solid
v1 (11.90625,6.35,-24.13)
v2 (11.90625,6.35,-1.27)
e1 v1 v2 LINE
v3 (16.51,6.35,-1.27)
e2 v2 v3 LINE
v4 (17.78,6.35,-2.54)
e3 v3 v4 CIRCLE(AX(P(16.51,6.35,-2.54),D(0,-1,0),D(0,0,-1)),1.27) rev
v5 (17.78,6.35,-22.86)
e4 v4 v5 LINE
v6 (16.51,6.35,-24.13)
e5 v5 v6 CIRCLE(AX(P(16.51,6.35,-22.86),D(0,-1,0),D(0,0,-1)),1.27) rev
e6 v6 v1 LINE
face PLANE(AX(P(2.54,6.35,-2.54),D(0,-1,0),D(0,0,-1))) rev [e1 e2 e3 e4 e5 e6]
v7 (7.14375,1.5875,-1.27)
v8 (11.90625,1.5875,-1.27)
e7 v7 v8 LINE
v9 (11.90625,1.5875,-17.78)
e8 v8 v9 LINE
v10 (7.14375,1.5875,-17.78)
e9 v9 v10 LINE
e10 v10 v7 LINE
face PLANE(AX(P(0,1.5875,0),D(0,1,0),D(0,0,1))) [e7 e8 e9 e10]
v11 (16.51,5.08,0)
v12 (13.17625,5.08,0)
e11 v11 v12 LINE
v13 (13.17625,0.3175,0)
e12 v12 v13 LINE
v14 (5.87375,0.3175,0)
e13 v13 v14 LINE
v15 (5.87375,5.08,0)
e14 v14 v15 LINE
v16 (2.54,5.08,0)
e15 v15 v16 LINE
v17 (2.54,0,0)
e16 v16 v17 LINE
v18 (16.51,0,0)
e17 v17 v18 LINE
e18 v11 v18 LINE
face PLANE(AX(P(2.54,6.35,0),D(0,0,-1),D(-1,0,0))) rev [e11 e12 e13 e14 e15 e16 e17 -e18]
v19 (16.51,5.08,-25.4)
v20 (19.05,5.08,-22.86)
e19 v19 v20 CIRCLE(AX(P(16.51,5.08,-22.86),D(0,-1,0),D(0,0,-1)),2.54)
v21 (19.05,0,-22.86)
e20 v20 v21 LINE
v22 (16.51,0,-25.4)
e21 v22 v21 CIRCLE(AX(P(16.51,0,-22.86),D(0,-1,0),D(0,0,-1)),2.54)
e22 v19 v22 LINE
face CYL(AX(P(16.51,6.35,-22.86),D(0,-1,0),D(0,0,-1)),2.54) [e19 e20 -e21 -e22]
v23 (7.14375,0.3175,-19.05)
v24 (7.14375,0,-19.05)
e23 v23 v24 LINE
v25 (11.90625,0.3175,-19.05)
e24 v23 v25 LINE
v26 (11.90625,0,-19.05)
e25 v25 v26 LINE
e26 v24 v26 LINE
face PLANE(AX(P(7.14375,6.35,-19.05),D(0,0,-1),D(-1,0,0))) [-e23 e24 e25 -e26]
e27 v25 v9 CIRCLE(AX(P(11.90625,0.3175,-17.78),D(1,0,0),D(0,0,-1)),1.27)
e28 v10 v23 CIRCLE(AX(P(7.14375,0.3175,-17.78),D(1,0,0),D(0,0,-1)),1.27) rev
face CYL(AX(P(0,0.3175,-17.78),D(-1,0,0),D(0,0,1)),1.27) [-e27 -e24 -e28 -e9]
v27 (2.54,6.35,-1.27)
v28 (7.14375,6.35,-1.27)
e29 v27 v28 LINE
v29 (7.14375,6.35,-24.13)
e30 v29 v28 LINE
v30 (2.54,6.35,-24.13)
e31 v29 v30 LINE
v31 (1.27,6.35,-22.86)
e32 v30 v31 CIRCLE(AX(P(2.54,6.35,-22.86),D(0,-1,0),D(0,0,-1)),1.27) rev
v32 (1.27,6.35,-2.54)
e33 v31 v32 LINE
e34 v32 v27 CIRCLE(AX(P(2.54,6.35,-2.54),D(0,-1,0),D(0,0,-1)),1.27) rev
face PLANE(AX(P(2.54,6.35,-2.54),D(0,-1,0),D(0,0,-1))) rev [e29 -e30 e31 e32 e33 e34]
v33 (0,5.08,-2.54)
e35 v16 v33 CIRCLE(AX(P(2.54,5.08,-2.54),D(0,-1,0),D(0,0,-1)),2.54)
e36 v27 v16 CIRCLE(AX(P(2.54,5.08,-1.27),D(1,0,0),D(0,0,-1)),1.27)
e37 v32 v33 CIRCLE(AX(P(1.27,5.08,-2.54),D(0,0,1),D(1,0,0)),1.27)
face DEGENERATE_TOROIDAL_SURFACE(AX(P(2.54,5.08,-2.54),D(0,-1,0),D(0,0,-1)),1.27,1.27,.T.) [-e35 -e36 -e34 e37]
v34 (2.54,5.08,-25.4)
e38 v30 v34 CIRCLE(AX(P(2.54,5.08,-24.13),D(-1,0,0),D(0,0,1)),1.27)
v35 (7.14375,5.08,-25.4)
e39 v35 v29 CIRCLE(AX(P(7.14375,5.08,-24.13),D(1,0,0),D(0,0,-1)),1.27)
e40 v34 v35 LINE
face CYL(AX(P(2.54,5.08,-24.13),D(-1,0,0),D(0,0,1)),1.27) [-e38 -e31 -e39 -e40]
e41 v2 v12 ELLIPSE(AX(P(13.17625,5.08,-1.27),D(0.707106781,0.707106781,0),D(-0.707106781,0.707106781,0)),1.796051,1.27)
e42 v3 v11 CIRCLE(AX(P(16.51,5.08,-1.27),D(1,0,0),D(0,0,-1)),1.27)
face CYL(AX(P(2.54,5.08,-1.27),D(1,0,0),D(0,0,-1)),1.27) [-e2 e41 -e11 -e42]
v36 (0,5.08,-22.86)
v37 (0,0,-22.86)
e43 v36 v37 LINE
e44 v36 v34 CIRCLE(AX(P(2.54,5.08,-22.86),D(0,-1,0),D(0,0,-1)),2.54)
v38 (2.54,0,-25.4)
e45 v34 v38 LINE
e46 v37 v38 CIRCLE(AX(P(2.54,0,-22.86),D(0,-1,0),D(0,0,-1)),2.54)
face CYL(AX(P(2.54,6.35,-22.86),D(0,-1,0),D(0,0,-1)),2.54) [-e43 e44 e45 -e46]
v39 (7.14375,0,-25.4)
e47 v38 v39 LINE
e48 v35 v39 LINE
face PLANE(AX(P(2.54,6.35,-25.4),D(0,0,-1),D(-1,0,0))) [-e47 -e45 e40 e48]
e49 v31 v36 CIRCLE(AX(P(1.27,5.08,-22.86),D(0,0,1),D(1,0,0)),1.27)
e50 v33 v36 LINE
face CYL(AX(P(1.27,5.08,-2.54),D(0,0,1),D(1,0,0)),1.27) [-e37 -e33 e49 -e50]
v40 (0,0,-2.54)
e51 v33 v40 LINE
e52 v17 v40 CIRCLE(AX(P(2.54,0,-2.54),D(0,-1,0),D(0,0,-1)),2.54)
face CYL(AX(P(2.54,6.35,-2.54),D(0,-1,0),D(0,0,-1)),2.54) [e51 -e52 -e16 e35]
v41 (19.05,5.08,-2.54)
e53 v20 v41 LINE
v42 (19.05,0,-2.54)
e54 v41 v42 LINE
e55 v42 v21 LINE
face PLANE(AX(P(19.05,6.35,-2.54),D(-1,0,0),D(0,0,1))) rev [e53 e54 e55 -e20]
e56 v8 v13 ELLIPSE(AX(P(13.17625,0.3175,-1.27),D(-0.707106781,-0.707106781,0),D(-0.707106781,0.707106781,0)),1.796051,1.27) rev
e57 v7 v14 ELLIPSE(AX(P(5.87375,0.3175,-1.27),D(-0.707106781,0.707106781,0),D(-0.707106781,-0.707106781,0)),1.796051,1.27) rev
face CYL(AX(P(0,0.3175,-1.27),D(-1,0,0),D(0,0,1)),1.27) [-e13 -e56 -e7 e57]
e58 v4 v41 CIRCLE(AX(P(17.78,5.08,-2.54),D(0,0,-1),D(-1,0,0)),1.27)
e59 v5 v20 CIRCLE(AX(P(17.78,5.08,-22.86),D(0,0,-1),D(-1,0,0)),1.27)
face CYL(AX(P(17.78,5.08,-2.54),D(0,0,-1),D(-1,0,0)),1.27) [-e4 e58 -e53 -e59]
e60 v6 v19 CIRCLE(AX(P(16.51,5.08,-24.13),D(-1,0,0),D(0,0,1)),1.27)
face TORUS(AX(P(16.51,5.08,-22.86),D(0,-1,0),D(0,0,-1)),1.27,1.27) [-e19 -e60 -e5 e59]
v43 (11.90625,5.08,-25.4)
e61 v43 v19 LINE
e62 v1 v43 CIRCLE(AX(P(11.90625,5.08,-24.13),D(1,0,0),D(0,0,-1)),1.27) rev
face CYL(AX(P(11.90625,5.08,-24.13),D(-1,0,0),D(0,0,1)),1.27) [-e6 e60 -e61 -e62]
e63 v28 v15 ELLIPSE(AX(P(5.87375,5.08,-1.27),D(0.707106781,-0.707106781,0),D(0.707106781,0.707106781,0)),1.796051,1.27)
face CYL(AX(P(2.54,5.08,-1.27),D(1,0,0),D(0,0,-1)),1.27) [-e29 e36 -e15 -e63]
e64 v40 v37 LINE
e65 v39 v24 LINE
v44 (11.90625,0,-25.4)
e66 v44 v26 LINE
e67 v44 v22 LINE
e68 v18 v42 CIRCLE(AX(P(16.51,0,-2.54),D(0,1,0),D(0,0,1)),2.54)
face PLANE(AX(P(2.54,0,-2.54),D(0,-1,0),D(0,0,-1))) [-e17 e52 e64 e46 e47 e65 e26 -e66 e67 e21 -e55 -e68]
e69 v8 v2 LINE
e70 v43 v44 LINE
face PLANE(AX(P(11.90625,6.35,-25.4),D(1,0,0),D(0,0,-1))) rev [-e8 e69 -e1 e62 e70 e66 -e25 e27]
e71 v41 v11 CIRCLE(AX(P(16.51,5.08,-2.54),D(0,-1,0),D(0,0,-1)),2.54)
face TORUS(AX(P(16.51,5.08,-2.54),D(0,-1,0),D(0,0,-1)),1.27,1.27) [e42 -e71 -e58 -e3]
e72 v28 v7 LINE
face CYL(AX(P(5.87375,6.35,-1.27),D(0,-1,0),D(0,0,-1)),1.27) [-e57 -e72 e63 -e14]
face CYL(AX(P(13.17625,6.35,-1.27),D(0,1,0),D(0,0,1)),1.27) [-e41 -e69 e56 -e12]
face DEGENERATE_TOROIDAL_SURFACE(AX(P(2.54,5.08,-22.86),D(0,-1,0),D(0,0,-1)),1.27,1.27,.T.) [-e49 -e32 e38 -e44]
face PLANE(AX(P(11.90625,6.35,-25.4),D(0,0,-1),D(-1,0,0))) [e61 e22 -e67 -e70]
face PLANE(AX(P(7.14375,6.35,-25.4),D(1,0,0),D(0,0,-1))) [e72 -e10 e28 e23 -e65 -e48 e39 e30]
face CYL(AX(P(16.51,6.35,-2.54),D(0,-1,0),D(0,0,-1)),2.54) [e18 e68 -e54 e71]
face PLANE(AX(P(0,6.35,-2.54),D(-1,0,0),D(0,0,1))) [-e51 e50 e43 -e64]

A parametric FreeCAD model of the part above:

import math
import FreeCAD as App
import Part
import Sketcher
Q = App.Units.Quantity


def edges_at(feature, points):
    """Names of the edges that pass closest to the given points."""
    edges = feature.Shape.Edges
    near = lambda p: min(range(len(edges)), key=lambda i: edges[i].distToShape(Part.Vertex(*p))[0])
    return sorted({f"Edge{near(p) + 1}" for p in points})

doc = App.newDocument("Part")
body = doc.addObject("PartDesign::Body", "Body")

sketch1 = body.newObject("Sketcher::SketchObject", "Sketch")
sketch1.AttachmentSupport = (doc.getObject("XZ_Plane"), [""])
sketch1.MapMode = "FlatFace"
sketch1.addGeometry([
    Part.LineSegment(App.Vector(16.5, -25.4, 0), App.Vector(11.9, -25.4, 0)),
    Part.LineSegment(App.Vector(11.9, -25.4, 0), App.Vector(11.9, -19.1, 0)),
    Part.LineSegment(App.Vector(11.9, -19.1, 0), App.Vector(7.1, -19.1, 0)),
    Part.LineSegment(App.Vector(7.1, -19.1, 0), App.Vector(7.1, -25.4, 0)),
    Part.LineSegment(App.Vector(7.1, -25.4, 0), App.Vector(2.5, -25.4, 0)),
    Part.ArcOfCircle(Part.Circle(App.Vector(2.5, -22.9, 0), App.Vector(0, 0, 1), 2.5), math.radians(-180), math.radians(-90)),
    Part.LineSegment(App.Vector(0, -22.9, 0), App.Vector(0, -2.5, 0)),
    Part.ArcOfCircle(Part.Circle(App.Vector(2.5, -2.5, 0), App.Vector(0, 0, 1), 2.5), math.radians(90), math.radians(180)),
    Part.LineSegment(App.Vector(2.5, 0, 0), App.Vector(16.5, 0, 0)),
    Part.ArcOfCircle(Part.Circle(App.Vector(16.5, -2.5, 0), App.Vector(0, 0, 1), 2.5), math.radians(0), math.radians(90)),
    Part.LineSegment(App.Vector(19.1, -2.5, 0), App.Vector(19.1, -22.9, 0)),
    Part.ArcOfCircle(Part.Circle(App.Vector(16.5, -22.9, 0), App.Vector(0, 0, 1), 2.5), math.radians(-90), math.radians(0)),
], False)
sketch1.addConstraint([
    Sketcher.Constraint("Coincident", 0, 2, 1, 1),
    Sketcher.Constraint("Coincident", 1, 2, 2, 1),
    Sketcher.Constraint("Coincident", 2, 2, 3, 1),
    Sketcher.Constraint("Coincident", 3, 2, 4, 1),
    Sketcher.Constraint("Tangent", 4, 2, 5, 2),
    Sketcher.Constraint("Tangent", 5, 1, 6, 1),
    Sketcher.Constraint("Tangent", 6, 2, 7, 2),
    Sketcher.Constraint("Tangent", 7, 1, 8, 1),
    Sketcher.Constraint("Tangent", 8, 2, 9, 2),
    Sketcher.Constraint("Tangent", 9, 1, 10, 1),
    Sketcher.Constraint("Tangent", 10, 2, 11, 2),
    Sketcher.Constraint("Tangent", 11, 1, 0, 1),
    Sketcher.Constraint("Horizontal", 0),
    Sketcher.Constraint("Vertical", 1),
    Sketcher.Constraint("Horizontal", 2),
    Sketcher.Constraint("Vertical", 3),
    Sketcher.Constraint("Horizontal", 4),
    Sketcher.Constraint("Vertical", 6),
    Sketcher.Constraint("Horizontal", 8),
    Sketcher.Constraint("Vertical", 10),
    Sketcher.Constraint("Equal", 5, 7),
    Sketcher.Constraint("Equal", 7, 9),
    Sketcher.Constraint("Equal", 9, 11),
    Sketcher.Constraint("PointOnObject", 5, 1, -2),
    Sketcher.Constraint("PointOnObject", 7, 1, -1),
    Sketcher.Constraint("Horizontal", 5, 3, 11, 3),
    Sketcher.Constraint("Equal", 0, 4),
    Sketcher.Constraint("Radius", 5, Q("0.1 in")),
    Sketcher.Constraint("DistanceY", 6, 1, 6, 2, Q("0.8 in")),
    Sketcher.Constraint("DistanceX", 8, 1, 8, 2, Q("0.55 in")),
    Sketcher.Constraint("DistanceY", 1, 1, 1, 2, Q("0.25 in")),
    Sketcher.Constraint("DistanceX", 2, 2, 2, 1, Q("0.1875 in")),
])
pad1 = body.newObject("PartDesign::Pad", "Pad")
pad1.Profile = sketch1
pad1.Length = Q("0.25 in")
pad1.Reversed = True

sketch2 = body.newObject("Sketcher::SketchObject", "Sketch001")
sketch2.AttachmentSupport = (doc.getObject("XZ_Plane"), [""])
sketch2.MapMode = "FlatFace"
sketch2.AttachmentOffset = App.Placement(App.Vector(0, 0, -0.25 * 25.4), App.Rotation())
sketch2.addGeometry([
    Part.LineSegment(App.Vector(7.1, -19.1, 0), App.Vector(7.1, 0, 0)),
    Part.LineSegment(App.Vector(7.1, 0, 0), App.Vector(11.9, 0, 0)),
    Part.LineSegment(App.Vector(11.9, 0, 0), App.Vector(11.9, -19.1, 0)),
    Part.LineSegment(App.Vector(11.9, -19.1, 0), App.Vector(7.1, -19.1, 0)),
], False)
sketch2.addConstraint([
    Sketcher.Constraint("Coincident", 0, 2, 1, 1),
    Sketcher.Constraint("Coincident", 1, 2, 2, 1),
    Sketcher.Constraint("Coincident", 2, 2, 3, 1),
    Sketcher.Constraint("Coincident", 3, 2, 0, 1),
    Sketcher.Constraint("Vertical", 0),
    Sketcher.Constraint("Horizontal", 1),
    Sketcher.Constraint("Vertical", 2),
    Sketcher.Constraint("Horizontal", 3),
    Sketcher.Constraint("PointOnObject", 0, 2, -1),
    Sketcher.Constraint("DistanceY", 0, 1, 0, 2, Q("0.75 in")),
    Sketcher.Constraint("DistanceX", 1, 1, 1, 2, Q("0.1875 in")),
    Sketcher.Constraint("DistanceX", -1, 1, 0, 2, Q("0.28125 in")),
])
pocket1 = body.newObject("PartDesign::Pocket", "Pocket")
pocket1.Profile = sketch2
pocket1.Length = Q("0.1875 in")
pocket1.Reversed = True
doc.recompute()

fillet = body.newObject("PartDesign::Fillet", "Fillet")
fillet.Base = (pocket1, edges_at(pocket1, [
    (0.744, 6.35, -24.656),
    (4.842, 6.35, -25.4),
    (14.208, 6.35, -25.4),
    (14.208, 6.35, 0),
    (18.306, 6.35, -24.656),
    (7.144, 3.969, 0),
    (9.525, 1.587, -19.05),
    (9.525, 1.587, 0),
    (11.906, 3.969, 0),
    (19.05, 6.35, -12.7),
    (18.306, 6.35, -0.744),
    (4.842, 6.35, 0),
    (0.744, 6.35, -0.744),
    (0, 6.35, -12.7),
]))
fillet.Radius = Q("0.05 in")

doc.recompute()
